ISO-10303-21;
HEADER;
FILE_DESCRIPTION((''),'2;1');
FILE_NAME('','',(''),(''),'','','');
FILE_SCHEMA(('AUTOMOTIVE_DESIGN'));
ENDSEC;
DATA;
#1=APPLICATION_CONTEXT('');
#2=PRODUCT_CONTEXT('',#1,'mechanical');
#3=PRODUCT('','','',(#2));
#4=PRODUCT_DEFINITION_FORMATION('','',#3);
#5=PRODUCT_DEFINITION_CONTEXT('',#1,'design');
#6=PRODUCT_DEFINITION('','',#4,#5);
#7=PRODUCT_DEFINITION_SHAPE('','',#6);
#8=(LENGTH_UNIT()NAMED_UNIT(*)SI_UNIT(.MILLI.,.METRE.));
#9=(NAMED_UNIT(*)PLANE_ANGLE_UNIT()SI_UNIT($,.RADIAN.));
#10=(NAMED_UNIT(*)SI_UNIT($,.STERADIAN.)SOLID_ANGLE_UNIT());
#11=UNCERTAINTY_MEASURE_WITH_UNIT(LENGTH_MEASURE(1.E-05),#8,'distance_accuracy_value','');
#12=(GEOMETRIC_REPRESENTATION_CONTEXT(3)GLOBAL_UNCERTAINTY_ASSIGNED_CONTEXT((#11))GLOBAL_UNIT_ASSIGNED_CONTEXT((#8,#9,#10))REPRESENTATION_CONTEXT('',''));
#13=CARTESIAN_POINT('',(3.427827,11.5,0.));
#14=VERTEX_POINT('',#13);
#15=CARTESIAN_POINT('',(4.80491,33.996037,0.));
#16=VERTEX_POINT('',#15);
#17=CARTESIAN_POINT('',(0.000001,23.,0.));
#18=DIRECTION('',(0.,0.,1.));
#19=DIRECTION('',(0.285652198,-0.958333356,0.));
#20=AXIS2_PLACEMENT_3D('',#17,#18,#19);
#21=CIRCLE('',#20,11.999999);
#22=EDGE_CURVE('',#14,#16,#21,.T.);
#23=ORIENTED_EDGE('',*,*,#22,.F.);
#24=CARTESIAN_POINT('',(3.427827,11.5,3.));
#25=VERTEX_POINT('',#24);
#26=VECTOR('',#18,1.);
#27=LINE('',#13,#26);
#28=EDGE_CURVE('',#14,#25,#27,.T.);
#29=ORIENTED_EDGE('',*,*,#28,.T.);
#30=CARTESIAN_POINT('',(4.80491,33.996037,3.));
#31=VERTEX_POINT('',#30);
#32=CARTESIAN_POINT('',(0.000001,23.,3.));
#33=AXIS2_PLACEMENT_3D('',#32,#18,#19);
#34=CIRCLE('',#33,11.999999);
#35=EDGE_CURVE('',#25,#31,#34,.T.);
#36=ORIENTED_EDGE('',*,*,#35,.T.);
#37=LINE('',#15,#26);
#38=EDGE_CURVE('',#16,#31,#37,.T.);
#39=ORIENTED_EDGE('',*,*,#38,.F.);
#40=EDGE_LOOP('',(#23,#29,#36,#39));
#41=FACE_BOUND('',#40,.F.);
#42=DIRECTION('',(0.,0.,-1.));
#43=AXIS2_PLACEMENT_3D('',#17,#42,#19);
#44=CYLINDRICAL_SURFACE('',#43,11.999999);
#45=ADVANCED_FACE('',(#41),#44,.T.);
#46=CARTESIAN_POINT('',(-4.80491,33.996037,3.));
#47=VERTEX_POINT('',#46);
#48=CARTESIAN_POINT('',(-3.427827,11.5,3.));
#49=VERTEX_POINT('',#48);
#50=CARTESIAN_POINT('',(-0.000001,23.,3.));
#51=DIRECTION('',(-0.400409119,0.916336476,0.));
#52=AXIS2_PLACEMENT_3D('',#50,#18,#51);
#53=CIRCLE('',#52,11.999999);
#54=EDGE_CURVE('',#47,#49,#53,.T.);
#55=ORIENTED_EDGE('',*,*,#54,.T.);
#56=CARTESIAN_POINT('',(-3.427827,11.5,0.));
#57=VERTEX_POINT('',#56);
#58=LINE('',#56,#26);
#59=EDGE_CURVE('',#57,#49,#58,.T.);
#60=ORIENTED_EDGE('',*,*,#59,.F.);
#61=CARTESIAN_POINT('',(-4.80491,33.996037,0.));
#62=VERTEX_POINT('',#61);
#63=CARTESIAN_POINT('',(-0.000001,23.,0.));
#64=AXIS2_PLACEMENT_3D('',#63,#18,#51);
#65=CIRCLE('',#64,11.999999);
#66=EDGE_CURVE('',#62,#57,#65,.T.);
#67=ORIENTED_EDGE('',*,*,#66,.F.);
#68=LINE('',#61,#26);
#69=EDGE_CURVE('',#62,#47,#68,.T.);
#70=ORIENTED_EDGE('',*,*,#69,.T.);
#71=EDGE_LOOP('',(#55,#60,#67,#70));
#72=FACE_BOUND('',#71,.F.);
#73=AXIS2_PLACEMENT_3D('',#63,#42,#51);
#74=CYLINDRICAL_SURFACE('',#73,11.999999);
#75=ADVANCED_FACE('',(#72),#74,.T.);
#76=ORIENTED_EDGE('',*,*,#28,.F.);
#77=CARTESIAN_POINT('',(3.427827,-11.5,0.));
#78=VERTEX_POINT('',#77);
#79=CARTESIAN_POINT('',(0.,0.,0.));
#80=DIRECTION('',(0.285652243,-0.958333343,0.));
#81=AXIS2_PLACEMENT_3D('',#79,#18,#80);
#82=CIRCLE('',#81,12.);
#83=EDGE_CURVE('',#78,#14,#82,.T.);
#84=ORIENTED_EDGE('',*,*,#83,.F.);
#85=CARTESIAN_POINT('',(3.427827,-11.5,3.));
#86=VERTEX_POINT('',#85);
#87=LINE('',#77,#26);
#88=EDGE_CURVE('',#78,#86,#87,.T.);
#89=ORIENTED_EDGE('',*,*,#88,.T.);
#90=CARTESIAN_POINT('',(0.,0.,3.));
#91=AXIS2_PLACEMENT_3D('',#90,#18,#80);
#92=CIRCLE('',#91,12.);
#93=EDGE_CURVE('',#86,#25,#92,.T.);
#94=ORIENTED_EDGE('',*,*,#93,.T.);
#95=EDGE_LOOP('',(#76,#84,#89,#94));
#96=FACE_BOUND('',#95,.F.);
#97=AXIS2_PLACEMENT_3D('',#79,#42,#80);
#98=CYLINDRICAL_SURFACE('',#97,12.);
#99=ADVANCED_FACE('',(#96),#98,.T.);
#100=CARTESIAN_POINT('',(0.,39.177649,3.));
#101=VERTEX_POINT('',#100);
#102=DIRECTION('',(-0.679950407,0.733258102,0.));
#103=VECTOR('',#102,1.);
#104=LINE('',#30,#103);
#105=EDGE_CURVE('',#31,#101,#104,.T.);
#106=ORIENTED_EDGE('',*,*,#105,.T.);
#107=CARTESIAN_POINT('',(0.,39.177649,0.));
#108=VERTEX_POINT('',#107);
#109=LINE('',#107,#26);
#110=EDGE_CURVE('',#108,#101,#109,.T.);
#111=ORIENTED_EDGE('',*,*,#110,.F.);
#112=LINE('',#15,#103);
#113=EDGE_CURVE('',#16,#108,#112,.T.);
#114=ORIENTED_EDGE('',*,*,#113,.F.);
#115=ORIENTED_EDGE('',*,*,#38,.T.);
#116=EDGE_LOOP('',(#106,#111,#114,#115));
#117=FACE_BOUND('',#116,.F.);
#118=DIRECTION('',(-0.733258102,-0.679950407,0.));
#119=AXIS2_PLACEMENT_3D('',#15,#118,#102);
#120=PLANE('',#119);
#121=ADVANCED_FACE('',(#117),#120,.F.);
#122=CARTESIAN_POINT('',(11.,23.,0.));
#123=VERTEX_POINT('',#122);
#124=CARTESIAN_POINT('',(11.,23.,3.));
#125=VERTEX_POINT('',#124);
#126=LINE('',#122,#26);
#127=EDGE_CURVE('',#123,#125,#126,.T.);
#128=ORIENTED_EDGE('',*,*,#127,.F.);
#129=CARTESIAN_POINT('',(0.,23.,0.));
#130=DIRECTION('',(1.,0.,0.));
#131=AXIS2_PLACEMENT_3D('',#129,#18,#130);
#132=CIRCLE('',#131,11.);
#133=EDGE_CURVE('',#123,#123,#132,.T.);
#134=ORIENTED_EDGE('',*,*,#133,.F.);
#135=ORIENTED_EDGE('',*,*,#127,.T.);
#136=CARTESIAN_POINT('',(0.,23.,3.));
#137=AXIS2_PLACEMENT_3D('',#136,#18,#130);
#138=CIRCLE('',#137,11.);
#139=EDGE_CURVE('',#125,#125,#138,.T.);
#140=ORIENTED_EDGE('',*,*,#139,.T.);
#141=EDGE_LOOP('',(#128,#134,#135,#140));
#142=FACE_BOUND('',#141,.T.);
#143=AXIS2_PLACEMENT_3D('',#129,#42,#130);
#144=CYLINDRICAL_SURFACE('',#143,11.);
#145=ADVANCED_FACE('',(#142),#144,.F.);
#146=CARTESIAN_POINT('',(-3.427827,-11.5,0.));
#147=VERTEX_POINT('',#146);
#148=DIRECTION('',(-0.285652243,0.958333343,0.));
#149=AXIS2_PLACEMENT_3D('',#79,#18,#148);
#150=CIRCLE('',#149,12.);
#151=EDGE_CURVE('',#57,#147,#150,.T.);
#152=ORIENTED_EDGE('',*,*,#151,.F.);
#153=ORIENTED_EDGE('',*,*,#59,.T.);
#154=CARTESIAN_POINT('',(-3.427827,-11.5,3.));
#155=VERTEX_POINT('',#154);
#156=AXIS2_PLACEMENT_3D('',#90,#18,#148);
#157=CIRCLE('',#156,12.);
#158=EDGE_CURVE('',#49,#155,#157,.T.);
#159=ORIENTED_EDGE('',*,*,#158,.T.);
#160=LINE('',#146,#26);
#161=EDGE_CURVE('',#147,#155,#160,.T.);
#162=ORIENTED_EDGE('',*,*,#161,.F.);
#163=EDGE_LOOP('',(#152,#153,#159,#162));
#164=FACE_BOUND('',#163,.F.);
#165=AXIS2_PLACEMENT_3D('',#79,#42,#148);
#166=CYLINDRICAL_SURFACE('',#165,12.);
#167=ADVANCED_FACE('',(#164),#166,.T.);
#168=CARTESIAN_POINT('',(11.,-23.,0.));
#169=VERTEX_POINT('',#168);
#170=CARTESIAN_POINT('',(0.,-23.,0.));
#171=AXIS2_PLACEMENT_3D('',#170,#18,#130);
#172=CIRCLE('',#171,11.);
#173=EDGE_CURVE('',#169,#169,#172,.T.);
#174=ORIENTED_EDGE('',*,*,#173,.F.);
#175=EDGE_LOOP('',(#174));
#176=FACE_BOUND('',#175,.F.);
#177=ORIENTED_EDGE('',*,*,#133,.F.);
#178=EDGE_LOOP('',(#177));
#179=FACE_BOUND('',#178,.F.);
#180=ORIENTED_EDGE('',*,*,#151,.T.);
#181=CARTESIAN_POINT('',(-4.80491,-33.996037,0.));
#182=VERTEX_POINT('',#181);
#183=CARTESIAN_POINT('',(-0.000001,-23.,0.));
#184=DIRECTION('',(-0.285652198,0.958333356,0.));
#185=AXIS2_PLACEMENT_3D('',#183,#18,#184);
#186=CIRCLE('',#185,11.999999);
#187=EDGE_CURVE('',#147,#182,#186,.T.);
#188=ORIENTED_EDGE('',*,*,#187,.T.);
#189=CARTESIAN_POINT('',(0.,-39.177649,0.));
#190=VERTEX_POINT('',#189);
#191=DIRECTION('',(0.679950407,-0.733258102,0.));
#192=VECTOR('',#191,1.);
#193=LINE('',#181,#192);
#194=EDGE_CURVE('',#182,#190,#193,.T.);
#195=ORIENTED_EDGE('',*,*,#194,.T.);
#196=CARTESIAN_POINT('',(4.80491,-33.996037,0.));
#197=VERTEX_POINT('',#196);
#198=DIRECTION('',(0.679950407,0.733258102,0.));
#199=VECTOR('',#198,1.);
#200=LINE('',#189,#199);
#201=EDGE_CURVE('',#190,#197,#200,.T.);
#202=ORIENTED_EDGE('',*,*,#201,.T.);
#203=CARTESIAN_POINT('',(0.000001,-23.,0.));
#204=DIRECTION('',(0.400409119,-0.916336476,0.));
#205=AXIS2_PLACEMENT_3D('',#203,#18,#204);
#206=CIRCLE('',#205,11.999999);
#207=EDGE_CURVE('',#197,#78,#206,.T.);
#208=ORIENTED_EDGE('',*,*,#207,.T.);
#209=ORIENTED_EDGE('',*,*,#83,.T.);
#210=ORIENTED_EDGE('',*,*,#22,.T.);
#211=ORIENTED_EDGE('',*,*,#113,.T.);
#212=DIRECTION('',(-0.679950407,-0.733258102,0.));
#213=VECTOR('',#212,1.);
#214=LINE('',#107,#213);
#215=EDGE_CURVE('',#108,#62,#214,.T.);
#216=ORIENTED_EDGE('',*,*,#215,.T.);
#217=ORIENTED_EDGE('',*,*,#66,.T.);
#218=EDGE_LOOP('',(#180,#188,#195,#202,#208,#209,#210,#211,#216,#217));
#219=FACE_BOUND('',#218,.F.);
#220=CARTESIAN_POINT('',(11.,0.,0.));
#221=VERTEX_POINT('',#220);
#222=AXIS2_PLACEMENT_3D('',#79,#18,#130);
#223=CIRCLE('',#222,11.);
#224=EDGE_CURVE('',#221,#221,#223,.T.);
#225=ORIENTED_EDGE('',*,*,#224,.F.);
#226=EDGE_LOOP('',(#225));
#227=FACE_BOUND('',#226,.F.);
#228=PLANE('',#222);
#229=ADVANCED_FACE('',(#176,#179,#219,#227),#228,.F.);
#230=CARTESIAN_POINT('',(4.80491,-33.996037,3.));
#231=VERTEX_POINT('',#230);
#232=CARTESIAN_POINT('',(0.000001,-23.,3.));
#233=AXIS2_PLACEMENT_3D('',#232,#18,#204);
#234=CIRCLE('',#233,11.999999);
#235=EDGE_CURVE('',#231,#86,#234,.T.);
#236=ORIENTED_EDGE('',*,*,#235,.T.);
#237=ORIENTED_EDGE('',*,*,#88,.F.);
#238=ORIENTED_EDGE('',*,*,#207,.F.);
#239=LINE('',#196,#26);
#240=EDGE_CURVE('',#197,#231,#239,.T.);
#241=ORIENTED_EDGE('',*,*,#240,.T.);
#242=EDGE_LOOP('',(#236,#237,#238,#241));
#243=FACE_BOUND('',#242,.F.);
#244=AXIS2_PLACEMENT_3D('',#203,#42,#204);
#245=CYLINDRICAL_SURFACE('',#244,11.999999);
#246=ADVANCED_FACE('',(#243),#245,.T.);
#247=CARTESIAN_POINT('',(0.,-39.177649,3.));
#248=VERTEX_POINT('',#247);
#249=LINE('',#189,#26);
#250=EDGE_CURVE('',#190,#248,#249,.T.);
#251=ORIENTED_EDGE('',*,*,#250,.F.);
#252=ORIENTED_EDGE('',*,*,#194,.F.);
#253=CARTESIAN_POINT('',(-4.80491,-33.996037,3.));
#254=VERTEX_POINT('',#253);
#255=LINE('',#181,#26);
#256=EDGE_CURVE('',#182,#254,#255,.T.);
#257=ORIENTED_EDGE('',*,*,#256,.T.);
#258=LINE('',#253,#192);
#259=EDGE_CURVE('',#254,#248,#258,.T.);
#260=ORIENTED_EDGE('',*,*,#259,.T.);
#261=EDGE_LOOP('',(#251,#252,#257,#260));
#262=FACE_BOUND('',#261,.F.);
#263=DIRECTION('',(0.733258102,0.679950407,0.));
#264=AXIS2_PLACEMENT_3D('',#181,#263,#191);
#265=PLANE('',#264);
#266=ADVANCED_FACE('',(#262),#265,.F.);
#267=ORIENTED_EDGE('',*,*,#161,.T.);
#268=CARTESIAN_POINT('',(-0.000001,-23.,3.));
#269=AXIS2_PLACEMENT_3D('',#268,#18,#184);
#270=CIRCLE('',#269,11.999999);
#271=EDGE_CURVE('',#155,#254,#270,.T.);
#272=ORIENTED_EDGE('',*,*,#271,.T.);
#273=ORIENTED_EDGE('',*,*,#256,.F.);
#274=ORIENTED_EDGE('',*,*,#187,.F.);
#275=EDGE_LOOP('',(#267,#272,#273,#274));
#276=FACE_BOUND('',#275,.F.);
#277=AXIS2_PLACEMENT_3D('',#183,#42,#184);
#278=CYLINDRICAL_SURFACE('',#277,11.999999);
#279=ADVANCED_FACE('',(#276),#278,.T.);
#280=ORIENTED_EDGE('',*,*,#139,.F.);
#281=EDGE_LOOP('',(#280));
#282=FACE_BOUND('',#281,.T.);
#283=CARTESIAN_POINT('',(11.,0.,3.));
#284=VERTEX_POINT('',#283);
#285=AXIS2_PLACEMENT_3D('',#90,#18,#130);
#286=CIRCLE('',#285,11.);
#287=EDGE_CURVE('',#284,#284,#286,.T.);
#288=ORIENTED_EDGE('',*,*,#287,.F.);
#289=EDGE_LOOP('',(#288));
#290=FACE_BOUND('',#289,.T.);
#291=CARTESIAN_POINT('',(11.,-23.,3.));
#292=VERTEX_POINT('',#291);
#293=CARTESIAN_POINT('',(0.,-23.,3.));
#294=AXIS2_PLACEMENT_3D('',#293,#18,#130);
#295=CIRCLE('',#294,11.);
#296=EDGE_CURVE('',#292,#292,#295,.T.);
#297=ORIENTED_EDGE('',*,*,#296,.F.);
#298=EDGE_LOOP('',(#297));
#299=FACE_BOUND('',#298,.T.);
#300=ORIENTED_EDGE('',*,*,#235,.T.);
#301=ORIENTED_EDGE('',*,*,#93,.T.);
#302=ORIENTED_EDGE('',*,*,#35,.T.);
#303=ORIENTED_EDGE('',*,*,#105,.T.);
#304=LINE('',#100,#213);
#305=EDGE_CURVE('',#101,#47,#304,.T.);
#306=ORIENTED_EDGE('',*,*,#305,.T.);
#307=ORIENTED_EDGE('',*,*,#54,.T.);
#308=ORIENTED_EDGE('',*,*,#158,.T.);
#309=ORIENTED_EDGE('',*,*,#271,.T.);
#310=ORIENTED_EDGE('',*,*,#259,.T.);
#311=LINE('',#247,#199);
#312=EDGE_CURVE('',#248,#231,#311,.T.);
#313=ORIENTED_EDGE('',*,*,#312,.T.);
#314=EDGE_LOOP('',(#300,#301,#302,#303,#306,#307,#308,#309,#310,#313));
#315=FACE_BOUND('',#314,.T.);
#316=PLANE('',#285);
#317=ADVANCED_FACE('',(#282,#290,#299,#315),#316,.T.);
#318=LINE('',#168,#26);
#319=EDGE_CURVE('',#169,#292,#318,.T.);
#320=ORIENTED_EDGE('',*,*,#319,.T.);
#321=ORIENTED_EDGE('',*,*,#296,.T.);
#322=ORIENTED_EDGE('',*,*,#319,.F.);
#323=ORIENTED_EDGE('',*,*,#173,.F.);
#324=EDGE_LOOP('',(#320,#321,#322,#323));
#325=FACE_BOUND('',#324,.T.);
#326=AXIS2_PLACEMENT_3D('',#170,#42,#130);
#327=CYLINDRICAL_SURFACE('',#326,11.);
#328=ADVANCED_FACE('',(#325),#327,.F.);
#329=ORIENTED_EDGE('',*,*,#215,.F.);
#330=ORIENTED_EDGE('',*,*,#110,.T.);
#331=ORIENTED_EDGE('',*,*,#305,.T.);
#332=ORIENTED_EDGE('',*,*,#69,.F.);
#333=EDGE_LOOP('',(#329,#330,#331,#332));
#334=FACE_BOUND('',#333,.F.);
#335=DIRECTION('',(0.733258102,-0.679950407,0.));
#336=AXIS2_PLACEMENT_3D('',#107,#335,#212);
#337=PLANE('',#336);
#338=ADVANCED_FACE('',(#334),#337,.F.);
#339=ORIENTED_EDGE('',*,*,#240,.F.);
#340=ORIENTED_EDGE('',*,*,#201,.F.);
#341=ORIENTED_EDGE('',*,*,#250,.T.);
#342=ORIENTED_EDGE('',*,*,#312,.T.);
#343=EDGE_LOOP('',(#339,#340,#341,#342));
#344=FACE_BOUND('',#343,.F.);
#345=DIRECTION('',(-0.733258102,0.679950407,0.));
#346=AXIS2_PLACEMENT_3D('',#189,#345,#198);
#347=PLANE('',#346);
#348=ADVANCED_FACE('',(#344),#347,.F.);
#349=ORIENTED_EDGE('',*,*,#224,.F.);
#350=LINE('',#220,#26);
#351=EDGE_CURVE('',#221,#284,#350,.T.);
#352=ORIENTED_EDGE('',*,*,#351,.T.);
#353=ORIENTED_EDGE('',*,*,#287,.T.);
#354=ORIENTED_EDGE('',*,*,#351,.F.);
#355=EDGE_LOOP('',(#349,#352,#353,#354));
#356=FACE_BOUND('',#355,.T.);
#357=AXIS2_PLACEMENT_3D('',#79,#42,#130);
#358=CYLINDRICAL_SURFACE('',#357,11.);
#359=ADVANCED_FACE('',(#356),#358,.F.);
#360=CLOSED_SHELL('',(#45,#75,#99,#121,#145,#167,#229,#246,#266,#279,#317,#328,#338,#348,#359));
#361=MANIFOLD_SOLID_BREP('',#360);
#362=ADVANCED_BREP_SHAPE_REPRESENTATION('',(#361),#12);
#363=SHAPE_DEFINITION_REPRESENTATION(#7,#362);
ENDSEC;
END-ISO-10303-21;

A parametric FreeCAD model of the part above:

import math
import FreeCAD as App
import Part
import Sketcher

V = App.Vector
Q = App.Units.Quantity

doc = App.newDocument("Part")
params = doc.addObject("Spreadsheet::Sheet", "Params")
for row, (alias, value) in enumerate([
    ("sketch1_diameter", "22 mm"),
    ("sketch1_radius", "11.999999 mm"),
    ("pad1_length", "3 mm"),
], start=1):
    params.set(f"A{row}", alias)
    params.set(f"B{row}", "=" + value)
    params.setAlias(f"B{row}", alias)

body = doc.addObject("PartDesign::Body", "Body")

# Sketch on XY plane
sketch1 = doc.addObject("Sketcher::SketchObject", "Sketch")
body.addObject(sketch1)
sketch1.AttachmentSupport = (doc.XY_Plane, [""])
sketch1.MapMode = "FlatFace"
sketch1.addGeometry([
    Part.ArcOfCircle(Part.Circle(V(-0.000001, 23, 0), V(0, 0, 1), 11.999999), math.radians(113.603757), math.radians(253.402162)),  # 0
    Part.ArcOfCircle(Part.Circle(V(0, 0, 0), V(0, 0, 1), 12), math.radians(106.59784), math.radians(253.40216)),  # 1
    Part.ArcOfCircle(Part.Circle(V(-0.000001, -23, 0), V(0, 0, 1), 11.999999), math.radians(106.597838), math.radians(246.396243)),  # 2
    Part.LineSegment(V(-4.80491, -33.996037, 0), V(0, -39.177649, 0)),  # 3
    Part.LineSegment(V(0, -39.177649, 0), V(4.80491, -33.996037, 0)),  # 4
    Part.ArcOfCircle(Part.Circle(V(0.000001, -23, 0), V(0, 0, 1), 11.999999), math.radians(-66.396243), math.radians(73.402162)),  # 5
    Part.ArcOfCircle(Part.Circle(V(0, 0, 0), V(0, 0, 1), 12), math.radians(-73.40216), math.radians(73.40216)),  # 6
    Part.ArcOfCircle(Part.Circle(V(0.000001, 23, 0), V(0, 0, 1), 11.999999), math.radians(-73.402162), math.radians(66.396243)),  # 7
    Part.LineSegment(V(4.80491, 33.996037, 0), V(0, 39.177649, 0)),  # 8
    Part.LineSegment(V(0, 39.177649, 0), V(-4.80491, 33.996037, 0)),  # 9
    Part.Circle(V(0, -23, 0), V(0, 0, 1), 11),  # 10
    Part.Circle(V(0, 0, 0), V(0, 0, 1), 11),  # 11
    Part.Circle(V(0, 23, 0), V(0, 0, 1), 11),  # 12
], False)
sketch1.addConstraint([
    Sketcher.Constraint("Coincident", 0, 2, 1, 1),
    Sketcher.Constraint("Coincident", 1, 2, 2, 1),
    Sketcher.Constraint("Coincident", 2, 2, 3, 1),
    Sketcher.Constraint("Coincident", 3, 2, 4, 1),
    Sketcher.Constraint("Coincident", 4, 2, 5, 1),
    Sketcher.Constraint("Coincident", 5, 2, 6, 1),
    Sketcher.Constraint("Coincident", 6, 2, 7, 1),
    Sketcher.Constraint("Coincident", 7, 2, 8, 1),
    Sketcher.Constraint("Coincident", 8, 2, 9, 1),
    Sketcher.Constraint("Coincident", 9, 2, 0, 1),
    Sketcher.Constraint("Coincident", 1, 3, -1, 1),
    Sketcher.Constraint("Coincident", 6, 3, -1, 1),
    Sketcher.Constraint("Coincident", 11, 3, -1, 1),
    Sketcher.Constraint("Coincident", 5, 3, 2, 3),
    Sketcher.Constraint("Coincident", 7, 3, 0, 3),
    Sketcher.Constraint("Coincident", 10, 3, 2, 3),
    Sketcher.Constraint("Coincident", 12, 3, 0, 3),
    Sketcher.Constraint("Equal", 0, 1),
    Sketcher.Constraint("Equal", 1, 2),
    Sketcher.Constraint("Equal", 2, 5),
    Sketcher.Constraint("Equal", 5, 6),
    Sketcher.Constraint("Equal", 6, 7),
    Sketcher.Constraint("Equal", 10, 11),
    Sketcher.Constraint("Equal", 11, 12),
    Sketcher.Constraint("Symmetric", 0, 3, 2, 3, -1, 1),
    Sketcher.Constraint("Symmetric", 3, 2, 8, 2, -1, 1),
    Sketcher.Constraint("Symmetric", 2, 2, 4, 2, -2),
    Sketcher.Constraint("PointOnObject", 3, 2, -2),
    Sketcher.Constraint("Parallel", 3, 8),
    Sketcher.Constraint("Parallel", 4, 9),
    Sketcher.Constraint("Diameter", 10, Q("22 mm")),
    Sketcher.Constraint("Radius", 0, Q("11.999999 mm")),
    Sketcher.Constraint("DistanceY", -1, 1, 0, 3, Q("23 mm")),
    Sketcher.Constraint("Distance", 3, Q("7.066559 mm")),
    Sketcher.Constraint("DistanceX", 2, 2, -1, 1, Q("4.80491 mm")),
])
sketch1.setExpression("Constraints[30]", "Params.sketch1_diameter")
sketch1.setExpression("Constraints[31]", "Params.sketch1_radius")
pad1 = doc.addObject("PartDesign::Pad", "Pad")
body.addObject(pad1)
pad1.Profile = sketch1
pad1.setExpression("Length", "Params.pad1_length")

doc.recompute()
